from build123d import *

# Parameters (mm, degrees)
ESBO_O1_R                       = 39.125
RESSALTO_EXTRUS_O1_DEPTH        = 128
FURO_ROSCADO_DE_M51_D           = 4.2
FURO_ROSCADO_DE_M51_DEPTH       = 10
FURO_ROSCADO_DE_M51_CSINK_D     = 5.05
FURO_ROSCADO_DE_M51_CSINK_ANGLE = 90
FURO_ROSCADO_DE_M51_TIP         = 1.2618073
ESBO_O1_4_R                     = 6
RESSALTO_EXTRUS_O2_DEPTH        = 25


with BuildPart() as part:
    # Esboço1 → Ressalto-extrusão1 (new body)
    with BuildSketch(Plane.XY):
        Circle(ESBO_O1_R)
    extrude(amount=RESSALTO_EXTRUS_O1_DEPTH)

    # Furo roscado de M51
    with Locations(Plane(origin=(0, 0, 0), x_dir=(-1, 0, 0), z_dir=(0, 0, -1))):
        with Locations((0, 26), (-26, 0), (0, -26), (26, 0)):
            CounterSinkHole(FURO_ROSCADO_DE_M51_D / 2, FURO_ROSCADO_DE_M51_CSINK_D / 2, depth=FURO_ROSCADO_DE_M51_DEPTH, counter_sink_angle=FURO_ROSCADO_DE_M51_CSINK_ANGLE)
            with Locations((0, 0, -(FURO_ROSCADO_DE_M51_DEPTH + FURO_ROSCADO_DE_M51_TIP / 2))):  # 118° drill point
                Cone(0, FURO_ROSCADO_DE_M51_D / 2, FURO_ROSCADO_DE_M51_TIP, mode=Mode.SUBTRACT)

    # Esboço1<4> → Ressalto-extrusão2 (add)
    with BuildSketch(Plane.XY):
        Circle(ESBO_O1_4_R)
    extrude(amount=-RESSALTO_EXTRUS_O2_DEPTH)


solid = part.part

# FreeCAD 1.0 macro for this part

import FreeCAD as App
import Part
import Sketcher

V = App.Vector
Q = App.Units.Quantity

doc = App.newDocument("Part")
body = doc.addObject("PartDesign::Body", "Body")

sketch1 = body.newObject("Sketcher::SketchObject", "Sketch")
sketch1.AttachmentSupport = (doc.getObject("XY_Plane"), [""])
sketch1.MapMode = "FlatFace"
sketch1.addGeometry(Part.Circle(V(0, 0, 0), V(0, 0, 1), 39), False)
sketch1.addConstraint([
    Sketcher.Constraint("Coincident", 0, 3, -1, 1),
    Sketcher.Constraint("Diameter", 0, Q("78.25 mm")),
])
pad1 = body.newObject("PartDesign::Pad", "Pad")
pad1.Profile = sketch1
pad1.Length = 128

sketch2 = body.newObject("Sketcher::SketchObject", "Sketch001")
sketch2.AttachmentSupport = (doc.getObject("XY_Plane"), [""])
sketch2.MapMode = "FlatFace"
sketch2.addGeometry([
    Part.Circle(V(0, 26, 0), V(0, 0, 1), 2.1),
    Part.Circle(V(26, 0, 0), V(0, 0, 1), 2.1),
    Part.Circle(V(0, -26, 0), V(0, 0, 1), 2.1),
    Part.Circle(V(-26, 0, 0), V(0, 0, 1), 2.1),
], False)
sketch2.addConstraint([
    Sketcher.Constraint("Equal", 0, 1),
    Sketcher.Constraint("Equal", 1, 2),
    Sketcher.Constraint("Equal", 2, 3),
    Sketcher.Constraint("Symmetric", 0, 3, 2, 3, -1, 1),
    Sketcher.Constraint("Symmetric", 1, 3, 3, 3, -1, 1),
    Sketcher.Constraint("PointOnObject", 0, 3, -2),
    Sketcher.Constraint("PointOnObject", 1, 3, -1),
    Sketcher.Constraint("Diameter", 0, Q("4.2 mm")),
    Sketcher.Constraint("DistanceY", -1, 1, 0, 3, Q("26 mm")),
    Sketcher.Constraint("DistanceX", -1, 1, 1, 3, Q("26 mm")),
])
doc.recompute()
hole = body.newObject("PartDesign::Hole", "Hole")
hole.Profile = sketch2
hole.ThreadType = "None"
hole.Diameter = 4.2
hole.DepthType = "Dimension"
hole.Depth = 10
hole.DrillPoint = "Angled"
hole.DrillPointAngle = 118
hole.HoleCutType = "Countersink"
hole.HoleCutDiameter = 5.05
hole.HoleCutCountersinkAngle = 90
hole.Reversed = True

sketch3 = body.newObject("Sketcher::SketchObject", "Sketch002")
sketch3.AttachmentSupport = (doc.getObject("XY_Plane"), [""])
sketch3.MapMode = "FlatFace"
sketch3.addGeometry(Part.Circle(V(0, 0, 0), V(0, 0, 1), 6), False)
sketch3.addConstraint([
    Sketcher.Constraint("Coincident", 0, 3, -1, 1),
    Sketcher.Constraint("Diameter", 0, Q("12 mm")),
])
pad2 = body.newObject("PartDesign::Pad", "Pad001")
pad2.Profile = sketch3
pad2.Length = 25
pad2.Reversed = True

doc.recompute()
